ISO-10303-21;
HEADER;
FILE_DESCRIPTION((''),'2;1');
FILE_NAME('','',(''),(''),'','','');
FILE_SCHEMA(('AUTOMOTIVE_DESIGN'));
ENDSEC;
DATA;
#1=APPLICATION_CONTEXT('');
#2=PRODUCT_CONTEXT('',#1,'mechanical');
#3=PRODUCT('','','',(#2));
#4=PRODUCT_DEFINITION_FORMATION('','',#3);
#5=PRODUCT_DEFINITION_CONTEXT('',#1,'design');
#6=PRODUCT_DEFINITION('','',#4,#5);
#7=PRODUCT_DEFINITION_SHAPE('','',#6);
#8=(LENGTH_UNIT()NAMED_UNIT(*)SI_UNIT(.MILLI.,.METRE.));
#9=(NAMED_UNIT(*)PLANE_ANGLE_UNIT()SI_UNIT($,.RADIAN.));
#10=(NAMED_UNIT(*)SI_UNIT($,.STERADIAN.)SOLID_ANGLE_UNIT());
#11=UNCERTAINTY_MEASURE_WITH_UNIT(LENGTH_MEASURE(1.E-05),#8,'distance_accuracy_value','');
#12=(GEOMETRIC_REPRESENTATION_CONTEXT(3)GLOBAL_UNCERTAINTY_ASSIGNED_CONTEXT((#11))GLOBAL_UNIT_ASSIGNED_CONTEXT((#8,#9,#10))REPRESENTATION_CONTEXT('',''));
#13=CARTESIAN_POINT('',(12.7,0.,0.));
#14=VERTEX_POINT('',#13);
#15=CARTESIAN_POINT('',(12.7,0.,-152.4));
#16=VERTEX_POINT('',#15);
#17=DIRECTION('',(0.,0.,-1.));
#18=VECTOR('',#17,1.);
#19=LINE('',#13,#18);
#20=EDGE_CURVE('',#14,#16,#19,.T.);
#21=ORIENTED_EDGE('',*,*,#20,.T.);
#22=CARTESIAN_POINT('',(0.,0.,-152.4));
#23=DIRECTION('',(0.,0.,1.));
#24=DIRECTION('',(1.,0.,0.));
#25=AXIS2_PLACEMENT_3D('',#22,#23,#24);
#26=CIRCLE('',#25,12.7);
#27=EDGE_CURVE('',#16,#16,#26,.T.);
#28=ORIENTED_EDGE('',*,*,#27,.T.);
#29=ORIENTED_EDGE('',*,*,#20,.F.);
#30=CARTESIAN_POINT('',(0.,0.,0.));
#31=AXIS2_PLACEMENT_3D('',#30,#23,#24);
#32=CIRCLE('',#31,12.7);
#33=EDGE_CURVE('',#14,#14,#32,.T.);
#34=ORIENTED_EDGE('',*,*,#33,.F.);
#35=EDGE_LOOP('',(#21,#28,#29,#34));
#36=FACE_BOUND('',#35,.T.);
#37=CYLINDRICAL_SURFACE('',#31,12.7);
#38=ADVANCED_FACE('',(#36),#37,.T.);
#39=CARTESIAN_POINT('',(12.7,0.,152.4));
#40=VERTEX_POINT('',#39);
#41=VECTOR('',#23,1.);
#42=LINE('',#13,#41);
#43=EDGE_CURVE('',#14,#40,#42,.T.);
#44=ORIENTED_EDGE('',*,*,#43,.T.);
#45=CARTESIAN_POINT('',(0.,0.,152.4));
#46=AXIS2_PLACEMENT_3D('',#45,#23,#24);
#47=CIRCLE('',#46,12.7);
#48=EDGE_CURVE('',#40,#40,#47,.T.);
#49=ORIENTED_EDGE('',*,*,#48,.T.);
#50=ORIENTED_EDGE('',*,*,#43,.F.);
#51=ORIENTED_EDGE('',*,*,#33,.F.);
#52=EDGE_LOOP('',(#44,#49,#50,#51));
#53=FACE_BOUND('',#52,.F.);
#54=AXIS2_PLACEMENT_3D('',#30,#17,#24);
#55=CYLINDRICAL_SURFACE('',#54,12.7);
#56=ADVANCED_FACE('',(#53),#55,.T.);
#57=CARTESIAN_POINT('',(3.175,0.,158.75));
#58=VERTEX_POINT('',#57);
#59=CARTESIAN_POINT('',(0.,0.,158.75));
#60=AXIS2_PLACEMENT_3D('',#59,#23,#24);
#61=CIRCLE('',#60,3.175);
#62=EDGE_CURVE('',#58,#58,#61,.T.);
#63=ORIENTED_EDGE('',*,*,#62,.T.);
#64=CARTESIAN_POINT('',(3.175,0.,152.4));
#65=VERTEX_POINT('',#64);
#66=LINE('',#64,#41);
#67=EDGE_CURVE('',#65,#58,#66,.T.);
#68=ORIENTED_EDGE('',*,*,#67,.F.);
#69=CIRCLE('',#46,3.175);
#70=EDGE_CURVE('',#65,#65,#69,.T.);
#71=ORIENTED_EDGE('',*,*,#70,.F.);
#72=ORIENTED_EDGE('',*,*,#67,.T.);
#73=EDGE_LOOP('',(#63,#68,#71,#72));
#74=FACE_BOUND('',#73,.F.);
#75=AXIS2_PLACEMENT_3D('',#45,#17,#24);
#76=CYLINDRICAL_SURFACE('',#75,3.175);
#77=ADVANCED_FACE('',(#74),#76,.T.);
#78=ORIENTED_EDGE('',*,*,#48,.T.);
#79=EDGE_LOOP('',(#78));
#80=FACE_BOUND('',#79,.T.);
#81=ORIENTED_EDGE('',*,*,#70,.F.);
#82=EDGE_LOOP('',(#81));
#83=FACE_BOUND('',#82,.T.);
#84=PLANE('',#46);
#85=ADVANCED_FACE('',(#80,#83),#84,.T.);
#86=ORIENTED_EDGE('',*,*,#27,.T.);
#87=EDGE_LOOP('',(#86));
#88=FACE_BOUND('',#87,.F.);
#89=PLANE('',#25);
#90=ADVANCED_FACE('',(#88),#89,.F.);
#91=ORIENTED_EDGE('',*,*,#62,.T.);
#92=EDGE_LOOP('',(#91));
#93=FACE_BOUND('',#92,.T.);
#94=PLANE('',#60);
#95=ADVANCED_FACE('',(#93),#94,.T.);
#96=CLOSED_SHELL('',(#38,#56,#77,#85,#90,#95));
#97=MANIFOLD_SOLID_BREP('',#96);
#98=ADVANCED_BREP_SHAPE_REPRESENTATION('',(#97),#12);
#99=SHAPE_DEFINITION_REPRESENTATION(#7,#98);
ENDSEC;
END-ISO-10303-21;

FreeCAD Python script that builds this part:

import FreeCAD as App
import Part
import Sketcher
Q = App.Units.Quantity

doc = App.newDocument("Part")
params = doc.addObject("Spreadsheet::Sheet", "Params")
for row, (alias, value) in enumerate([
    ("sketch1_diameter", "1 in"),
    ("pad1_length", "12 in"),
    ("sketch2_diameter", "0.25 in"),
    ("pad2_length", "0.25 in"),
], start=1):
    params.set(f"A{row}", alias)
    params.set(f"B{row}", "=" + value)
    params.setAlias(f"B{row}", alias)

body = doc.addObject("PartDesign::Body", "Body")

# Sketch on XY plane
sketch1 = doc.addObject("Sketcher::SketchObject", "Sketch")
body.addObject(sketch1)
sketch1.AttachmentSupport = (doc.XY_Plane, [""])
sketch1.MapMode = "FlatFace"
sketch1.addGeometry(Part.Circle(App.Vector(0, 0, 0), App.Vector(0, 0, 1), 13), False)
sketch1.addConstraint([
    Sketcher.Constraint("Coincident", 0, 3, -1, 1),
    Sketcher.Constraint("Diameter", 0, Q("1 in")),
])
sketch1.setExpression("Constraints[1]", "Params.sketch1_diameter")
pad1 = doc.addObject("PartDesign::Pad", "Pad")
body.addObject(pad1)
pad1.Profile = sketch1
pad1.setExpression("Length", "Params.pad1_length")
pad1.Midplane = True

# Sketch on XY plane
sketch2 = doc.addObject("Sketcher::SketchObject", "Sketch001")
body.addObject(sketch2)
sketch2.AttachmentSupport = (doc.XY_Plane, [""])
sketch2.MapMode = "FlatFace"
sketch2.AttachmentOffset = App.Placement(App.Vector(0, 0, 6 * 25.4), App.Rotation())
sketch2.addGeometry(Part.Circle(App.Vector(0, 0, 0), App.Vector(0, 0, 1), 3.2), False)
sketch2.addConstraint([
    Sketcher.Constraint("Coincident", 0, 3, -1, 1),
    Sketcher.Constraint("Diameter", 0, Q("0.25 in")),
])
sketch2.setExpression("Constraints[1]", "Params.sketch2_diameter")
pad2 = doc.addObject("PartDesign::Pad", "Pad001")
body.addObject(pad2)
pad2.Profile = sketch2
pad2.setExpression("Length", "Params.pad2_length")

doc.recompute()
